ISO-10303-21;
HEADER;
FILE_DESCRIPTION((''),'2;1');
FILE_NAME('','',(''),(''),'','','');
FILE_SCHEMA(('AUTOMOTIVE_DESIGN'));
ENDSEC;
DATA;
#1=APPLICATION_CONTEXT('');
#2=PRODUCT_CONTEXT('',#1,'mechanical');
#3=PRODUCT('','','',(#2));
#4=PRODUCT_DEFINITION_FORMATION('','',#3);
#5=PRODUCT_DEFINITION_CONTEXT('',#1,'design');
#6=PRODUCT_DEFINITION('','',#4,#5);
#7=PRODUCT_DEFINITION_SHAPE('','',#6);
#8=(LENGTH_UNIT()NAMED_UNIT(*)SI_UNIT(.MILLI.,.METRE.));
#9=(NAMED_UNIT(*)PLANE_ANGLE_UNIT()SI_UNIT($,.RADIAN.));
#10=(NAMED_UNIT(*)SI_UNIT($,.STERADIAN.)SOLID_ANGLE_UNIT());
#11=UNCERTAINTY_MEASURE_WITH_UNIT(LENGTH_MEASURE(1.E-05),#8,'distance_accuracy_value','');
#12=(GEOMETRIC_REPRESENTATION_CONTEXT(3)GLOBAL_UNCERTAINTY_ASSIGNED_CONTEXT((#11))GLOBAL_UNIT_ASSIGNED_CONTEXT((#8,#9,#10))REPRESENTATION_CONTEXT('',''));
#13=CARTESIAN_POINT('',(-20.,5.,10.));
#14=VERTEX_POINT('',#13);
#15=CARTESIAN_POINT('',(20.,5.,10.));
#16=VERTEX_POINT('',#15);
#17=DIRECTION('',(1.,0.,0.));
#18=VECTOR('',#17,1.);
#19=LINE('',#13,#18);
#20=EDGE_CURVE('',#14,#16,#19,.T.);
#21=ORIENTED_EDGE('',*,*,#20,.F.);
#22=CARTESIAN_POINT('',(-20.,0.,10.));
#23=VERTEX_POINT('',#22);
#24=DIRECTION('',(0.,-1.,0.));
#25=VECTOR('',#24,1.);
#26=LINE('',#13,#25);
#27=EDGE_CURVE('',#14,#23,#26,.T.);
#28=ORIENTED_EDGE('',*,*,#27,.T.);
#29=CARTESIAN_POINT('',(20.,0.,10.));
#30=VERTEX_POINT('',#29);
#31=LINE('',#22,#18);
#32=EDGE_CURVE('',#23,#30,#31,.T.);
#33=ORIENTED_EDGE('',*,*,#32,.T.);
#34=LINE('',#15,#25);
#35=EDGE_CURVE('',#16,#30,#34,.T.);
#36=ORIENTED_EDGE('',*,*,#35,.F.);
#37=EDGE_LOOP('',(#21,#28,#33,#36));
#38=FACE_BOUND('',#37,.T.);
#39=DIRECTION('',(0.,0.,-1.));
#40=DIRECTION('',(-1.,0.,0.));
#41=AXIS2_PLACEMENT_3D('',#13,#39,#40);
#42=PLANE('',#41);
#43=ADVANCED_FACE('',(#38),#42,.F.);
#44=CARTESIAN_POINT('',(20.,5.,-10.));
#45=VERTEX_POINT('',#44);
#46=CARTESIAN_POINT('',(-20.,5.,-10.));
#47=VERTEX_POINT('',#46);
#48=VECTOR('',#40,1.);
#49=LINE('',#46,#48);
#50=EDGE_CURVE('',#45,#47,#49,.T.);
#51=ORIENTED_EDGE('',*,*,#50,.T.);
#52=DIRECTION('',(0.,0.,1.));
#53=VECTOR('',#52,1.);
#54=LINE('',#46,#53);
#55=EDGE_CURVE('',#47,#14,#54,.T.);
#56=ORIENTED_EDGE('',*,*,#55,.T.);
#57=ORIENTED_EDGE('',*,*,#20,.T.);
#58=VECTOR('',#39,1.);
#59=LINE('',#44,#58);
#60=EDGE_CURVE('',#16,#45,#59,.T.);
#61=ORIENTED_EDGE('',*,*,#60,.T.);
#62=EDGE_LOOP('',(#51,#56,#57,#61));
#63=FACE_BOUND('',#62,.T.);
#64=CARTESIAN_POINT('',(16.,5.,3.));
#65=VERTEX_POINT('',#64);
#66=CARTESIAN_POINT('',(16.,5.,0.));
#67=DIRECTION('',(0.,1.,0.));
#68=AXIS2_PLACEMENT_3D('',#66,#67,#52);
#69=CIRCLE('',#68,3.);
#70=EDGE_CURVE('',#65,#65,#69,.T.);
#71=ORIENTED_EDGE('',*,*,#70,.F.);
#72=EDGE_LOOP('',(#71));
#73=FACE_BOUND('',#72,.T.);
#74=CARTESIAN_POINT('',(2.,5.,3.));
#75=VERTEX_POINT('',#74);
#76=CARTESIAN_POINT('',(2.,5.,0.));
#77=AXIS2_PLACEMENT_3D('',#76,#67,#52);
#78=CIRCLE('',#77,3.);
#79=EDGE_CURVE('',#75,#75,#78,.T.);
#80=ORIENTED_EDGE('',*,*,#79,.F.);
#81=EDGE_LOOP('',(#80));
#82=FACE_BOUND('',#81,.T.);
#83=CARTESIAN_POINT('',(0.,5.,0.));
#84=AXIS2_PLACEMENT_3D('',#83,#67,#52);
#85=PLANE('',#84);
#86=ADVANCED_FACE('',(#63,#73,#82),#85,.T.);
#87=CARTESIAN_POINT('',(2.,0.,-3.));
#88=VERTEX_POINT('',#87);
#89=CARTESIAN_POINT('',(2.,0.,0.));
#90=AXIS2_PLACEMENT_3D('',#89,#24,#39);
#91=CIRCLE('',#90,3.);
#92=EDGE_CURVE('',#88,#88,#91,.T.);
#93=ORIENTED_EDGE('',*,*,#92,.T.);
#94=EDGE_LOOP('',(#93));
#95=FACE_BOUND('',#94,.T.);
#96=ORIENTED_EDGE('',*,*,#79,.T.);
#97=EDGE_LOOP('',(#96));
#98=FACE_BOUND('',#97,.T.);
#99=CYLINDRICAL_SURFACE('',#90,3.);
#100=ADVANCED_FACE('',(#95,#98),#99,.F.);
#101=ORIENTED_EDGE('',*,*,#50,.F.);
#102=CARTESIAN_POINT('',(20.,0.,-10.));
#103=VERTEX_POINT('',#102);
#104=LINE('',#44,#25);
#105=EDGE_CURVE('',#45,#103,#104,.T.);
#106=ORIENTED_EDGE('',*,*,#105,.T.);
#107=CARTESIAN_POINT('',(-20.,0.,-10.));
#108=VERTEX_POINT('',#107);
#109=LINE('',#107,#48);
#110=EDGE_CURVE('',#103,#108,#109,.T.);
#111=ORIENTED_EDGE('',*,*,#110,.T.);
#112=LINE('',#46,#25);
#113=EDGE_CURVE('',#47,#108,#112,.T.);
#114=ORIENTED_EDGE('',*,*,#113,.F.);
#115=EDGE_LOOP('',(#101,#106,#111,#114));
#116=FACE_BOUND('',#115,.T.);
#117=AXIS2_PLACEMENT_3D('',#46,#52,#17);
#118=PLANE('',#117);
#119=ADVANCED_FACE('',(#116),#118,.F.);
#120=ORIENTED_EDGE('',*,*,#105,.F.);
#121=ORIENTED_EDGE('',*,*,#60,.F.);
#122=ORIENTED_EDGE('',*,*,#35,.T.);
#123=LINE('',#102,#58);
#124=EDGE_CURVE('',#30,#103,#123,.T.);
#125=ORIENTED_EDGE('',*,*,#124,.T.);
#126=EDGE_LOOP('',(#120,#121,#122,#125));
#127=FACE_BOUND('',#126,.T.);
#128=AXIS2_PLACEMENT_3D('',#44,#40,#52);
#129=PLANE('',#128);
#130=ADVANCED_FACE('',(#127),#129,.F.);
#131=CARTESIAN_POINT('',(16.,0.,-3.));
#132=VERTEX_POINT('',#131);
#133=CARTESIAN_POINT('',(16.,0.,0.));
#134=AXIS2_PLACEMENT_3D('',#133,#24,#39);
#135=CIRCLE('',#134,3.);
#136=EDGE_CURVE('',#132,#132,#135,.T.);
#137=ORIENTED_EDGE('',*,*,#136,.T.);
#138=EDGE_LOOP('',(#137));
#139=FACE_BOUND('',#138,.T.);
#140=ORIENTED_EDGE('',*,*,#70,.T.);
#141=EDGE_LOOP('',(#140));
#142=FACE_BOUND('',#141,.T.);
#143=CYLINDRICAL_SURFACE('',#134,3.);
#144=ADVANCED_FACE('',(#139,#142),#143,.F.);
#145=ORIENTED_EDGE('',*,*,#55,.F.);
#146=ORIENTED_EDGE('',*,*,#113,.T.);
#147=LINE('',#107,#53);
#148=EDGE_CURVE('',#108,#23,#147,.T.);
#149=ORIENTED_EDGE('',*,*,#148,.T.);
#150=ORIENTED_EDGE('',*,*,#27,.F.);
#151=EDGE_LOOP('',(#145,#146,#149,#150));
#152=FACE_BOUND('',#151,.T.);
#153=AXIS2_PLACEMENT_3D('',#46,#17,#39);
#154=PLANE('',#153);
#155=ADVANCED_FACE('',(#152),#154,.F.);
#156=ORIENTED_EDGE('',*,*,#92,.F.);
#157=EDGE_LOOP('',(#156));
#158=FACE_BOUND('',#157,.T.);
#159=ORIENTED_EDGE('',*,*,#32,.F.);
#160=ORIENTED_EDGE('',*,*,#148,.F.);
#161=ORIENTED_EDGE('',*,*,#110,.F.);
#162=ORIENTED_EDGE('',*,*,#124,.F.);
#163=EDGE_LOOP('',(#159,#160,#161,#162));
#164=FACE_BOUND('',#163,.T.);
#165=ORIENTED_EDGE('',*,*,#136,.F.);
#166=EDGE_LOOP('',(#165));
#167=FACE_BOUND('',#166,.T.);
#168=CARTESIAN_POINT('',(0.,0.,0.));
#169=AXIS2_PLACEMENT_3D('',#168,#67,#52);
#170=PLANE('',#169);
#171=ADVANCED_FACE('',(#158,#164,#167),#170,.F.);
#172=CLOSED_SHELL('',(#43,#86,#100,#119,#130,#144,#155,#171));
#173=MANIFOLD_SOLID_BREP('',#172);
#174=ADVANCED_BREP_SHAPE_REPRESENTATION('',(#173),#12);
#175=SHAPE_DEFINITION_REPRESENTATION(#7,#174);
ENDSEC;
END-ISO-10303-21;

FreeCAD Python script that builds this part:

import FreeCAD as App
import Part
import Sketcher

V = App.Vector
Q = App.Units.Quantity

doc = App.newDocument("Part")
body = doc.addObject("PartDesign::Body", "Body")

# Sketch on XZ plane
sketch1 = body.newObject("Sketcher::SketchObject", "Sketch")
sketch1.AttachmentSupport = (doc.getObject("XZ_Plane"), [""])
sketch1.MapMode = "FlatFace"
sketch1.addGeometry([
    Part.LineSegment(V(-20, -10, 0), V(-20, 10, 0)),
    Part.LineSegment(V(-20, 10, 0), V(20, 10, 0)),
    Part.LineSegment(V(20, 10, 0), V(20, -10, 0)),
    Part.LineSegment(V(20, -10, 0), V(-20, -10, 0)),
], False)
sketch1.addConstraint([
    Sketcher.Constraint("Coincident", 0, 2, 1, 1),
    Sketcher.Constraint("Coincident", 1, 2, 2, 1),
    Sketcher.Constraint("Coincident", 2, 2, 3, 1),
    Sketcher.Constraint("Coincident", 3, 2, 0, 1),
    Sketcher.Constraint("Vertical", 0),
    Sketcher.Constraint("Horizontal", 1),
    Sketcher.Constraint("Vertical", 2),
    Sketcher.Constraint("Horizontal", 3),
    Sketcher.Constraint("Symmetric", 0, 2, 2, 2, -1, 1),
    Sketcher.Constraint("DistanceX", 1, 1, 1, 2, Q("40 mm")),
    Sketcher.Constraint("DistanceY", 0, 1, 0, 2, Q("20 mm")),
])
pad1 = body.newObject("PartDesign::Pad", "Pad")
pad1.Profile = sketch1
pad1.Length = 5
pad1.Reversed = True

# Sketch on XZ plane
sketch2 = body.newObject("Sketcher::SketchObject", "Sketch001")
sketch2.AttachmentSupport = (doc.getObject("XZ_Plane"), [""])
sketch2.MapMode = "FlatFace"
sketch2.addGeometry([
    Part.Circle(V(16, 0, 0), V(0, 0, 1), 3),
    Part.Circle(V(2, 0, 0), V(0, 0, 1), 3),
], False)
sketch2.addConstraint([
    Sketcher.Constraint("Equal", 0, 1),
    Sketcher.Constraint("PointOnObject", 0, 3, -1),
    Sketcher.Constraint("PointOnObject", 1, 3, -1),
    Sketcher.Constraint("Diameter", 0, Q("6 mm")),
    Sketcher.Constraint("DistanceX", -1, 1, 0, 3, Q("16 mm")),
    Sketcher.Constraint("DistanceX", -1, 1, 1, 3, Q("2 mm")),
])
doc.recompute()
hole = body.newObject("PartDesign::Hole", "Hole")
hole.Profile = sketch2
hole.ThreadType = "None"
hole.Diameter = 6
hole.DepthType = "Dimension"
hole.Depth = 20
hole.DrillPoint = "Angled"
hole.DrillPointAngle = 118

doc.recompute()
